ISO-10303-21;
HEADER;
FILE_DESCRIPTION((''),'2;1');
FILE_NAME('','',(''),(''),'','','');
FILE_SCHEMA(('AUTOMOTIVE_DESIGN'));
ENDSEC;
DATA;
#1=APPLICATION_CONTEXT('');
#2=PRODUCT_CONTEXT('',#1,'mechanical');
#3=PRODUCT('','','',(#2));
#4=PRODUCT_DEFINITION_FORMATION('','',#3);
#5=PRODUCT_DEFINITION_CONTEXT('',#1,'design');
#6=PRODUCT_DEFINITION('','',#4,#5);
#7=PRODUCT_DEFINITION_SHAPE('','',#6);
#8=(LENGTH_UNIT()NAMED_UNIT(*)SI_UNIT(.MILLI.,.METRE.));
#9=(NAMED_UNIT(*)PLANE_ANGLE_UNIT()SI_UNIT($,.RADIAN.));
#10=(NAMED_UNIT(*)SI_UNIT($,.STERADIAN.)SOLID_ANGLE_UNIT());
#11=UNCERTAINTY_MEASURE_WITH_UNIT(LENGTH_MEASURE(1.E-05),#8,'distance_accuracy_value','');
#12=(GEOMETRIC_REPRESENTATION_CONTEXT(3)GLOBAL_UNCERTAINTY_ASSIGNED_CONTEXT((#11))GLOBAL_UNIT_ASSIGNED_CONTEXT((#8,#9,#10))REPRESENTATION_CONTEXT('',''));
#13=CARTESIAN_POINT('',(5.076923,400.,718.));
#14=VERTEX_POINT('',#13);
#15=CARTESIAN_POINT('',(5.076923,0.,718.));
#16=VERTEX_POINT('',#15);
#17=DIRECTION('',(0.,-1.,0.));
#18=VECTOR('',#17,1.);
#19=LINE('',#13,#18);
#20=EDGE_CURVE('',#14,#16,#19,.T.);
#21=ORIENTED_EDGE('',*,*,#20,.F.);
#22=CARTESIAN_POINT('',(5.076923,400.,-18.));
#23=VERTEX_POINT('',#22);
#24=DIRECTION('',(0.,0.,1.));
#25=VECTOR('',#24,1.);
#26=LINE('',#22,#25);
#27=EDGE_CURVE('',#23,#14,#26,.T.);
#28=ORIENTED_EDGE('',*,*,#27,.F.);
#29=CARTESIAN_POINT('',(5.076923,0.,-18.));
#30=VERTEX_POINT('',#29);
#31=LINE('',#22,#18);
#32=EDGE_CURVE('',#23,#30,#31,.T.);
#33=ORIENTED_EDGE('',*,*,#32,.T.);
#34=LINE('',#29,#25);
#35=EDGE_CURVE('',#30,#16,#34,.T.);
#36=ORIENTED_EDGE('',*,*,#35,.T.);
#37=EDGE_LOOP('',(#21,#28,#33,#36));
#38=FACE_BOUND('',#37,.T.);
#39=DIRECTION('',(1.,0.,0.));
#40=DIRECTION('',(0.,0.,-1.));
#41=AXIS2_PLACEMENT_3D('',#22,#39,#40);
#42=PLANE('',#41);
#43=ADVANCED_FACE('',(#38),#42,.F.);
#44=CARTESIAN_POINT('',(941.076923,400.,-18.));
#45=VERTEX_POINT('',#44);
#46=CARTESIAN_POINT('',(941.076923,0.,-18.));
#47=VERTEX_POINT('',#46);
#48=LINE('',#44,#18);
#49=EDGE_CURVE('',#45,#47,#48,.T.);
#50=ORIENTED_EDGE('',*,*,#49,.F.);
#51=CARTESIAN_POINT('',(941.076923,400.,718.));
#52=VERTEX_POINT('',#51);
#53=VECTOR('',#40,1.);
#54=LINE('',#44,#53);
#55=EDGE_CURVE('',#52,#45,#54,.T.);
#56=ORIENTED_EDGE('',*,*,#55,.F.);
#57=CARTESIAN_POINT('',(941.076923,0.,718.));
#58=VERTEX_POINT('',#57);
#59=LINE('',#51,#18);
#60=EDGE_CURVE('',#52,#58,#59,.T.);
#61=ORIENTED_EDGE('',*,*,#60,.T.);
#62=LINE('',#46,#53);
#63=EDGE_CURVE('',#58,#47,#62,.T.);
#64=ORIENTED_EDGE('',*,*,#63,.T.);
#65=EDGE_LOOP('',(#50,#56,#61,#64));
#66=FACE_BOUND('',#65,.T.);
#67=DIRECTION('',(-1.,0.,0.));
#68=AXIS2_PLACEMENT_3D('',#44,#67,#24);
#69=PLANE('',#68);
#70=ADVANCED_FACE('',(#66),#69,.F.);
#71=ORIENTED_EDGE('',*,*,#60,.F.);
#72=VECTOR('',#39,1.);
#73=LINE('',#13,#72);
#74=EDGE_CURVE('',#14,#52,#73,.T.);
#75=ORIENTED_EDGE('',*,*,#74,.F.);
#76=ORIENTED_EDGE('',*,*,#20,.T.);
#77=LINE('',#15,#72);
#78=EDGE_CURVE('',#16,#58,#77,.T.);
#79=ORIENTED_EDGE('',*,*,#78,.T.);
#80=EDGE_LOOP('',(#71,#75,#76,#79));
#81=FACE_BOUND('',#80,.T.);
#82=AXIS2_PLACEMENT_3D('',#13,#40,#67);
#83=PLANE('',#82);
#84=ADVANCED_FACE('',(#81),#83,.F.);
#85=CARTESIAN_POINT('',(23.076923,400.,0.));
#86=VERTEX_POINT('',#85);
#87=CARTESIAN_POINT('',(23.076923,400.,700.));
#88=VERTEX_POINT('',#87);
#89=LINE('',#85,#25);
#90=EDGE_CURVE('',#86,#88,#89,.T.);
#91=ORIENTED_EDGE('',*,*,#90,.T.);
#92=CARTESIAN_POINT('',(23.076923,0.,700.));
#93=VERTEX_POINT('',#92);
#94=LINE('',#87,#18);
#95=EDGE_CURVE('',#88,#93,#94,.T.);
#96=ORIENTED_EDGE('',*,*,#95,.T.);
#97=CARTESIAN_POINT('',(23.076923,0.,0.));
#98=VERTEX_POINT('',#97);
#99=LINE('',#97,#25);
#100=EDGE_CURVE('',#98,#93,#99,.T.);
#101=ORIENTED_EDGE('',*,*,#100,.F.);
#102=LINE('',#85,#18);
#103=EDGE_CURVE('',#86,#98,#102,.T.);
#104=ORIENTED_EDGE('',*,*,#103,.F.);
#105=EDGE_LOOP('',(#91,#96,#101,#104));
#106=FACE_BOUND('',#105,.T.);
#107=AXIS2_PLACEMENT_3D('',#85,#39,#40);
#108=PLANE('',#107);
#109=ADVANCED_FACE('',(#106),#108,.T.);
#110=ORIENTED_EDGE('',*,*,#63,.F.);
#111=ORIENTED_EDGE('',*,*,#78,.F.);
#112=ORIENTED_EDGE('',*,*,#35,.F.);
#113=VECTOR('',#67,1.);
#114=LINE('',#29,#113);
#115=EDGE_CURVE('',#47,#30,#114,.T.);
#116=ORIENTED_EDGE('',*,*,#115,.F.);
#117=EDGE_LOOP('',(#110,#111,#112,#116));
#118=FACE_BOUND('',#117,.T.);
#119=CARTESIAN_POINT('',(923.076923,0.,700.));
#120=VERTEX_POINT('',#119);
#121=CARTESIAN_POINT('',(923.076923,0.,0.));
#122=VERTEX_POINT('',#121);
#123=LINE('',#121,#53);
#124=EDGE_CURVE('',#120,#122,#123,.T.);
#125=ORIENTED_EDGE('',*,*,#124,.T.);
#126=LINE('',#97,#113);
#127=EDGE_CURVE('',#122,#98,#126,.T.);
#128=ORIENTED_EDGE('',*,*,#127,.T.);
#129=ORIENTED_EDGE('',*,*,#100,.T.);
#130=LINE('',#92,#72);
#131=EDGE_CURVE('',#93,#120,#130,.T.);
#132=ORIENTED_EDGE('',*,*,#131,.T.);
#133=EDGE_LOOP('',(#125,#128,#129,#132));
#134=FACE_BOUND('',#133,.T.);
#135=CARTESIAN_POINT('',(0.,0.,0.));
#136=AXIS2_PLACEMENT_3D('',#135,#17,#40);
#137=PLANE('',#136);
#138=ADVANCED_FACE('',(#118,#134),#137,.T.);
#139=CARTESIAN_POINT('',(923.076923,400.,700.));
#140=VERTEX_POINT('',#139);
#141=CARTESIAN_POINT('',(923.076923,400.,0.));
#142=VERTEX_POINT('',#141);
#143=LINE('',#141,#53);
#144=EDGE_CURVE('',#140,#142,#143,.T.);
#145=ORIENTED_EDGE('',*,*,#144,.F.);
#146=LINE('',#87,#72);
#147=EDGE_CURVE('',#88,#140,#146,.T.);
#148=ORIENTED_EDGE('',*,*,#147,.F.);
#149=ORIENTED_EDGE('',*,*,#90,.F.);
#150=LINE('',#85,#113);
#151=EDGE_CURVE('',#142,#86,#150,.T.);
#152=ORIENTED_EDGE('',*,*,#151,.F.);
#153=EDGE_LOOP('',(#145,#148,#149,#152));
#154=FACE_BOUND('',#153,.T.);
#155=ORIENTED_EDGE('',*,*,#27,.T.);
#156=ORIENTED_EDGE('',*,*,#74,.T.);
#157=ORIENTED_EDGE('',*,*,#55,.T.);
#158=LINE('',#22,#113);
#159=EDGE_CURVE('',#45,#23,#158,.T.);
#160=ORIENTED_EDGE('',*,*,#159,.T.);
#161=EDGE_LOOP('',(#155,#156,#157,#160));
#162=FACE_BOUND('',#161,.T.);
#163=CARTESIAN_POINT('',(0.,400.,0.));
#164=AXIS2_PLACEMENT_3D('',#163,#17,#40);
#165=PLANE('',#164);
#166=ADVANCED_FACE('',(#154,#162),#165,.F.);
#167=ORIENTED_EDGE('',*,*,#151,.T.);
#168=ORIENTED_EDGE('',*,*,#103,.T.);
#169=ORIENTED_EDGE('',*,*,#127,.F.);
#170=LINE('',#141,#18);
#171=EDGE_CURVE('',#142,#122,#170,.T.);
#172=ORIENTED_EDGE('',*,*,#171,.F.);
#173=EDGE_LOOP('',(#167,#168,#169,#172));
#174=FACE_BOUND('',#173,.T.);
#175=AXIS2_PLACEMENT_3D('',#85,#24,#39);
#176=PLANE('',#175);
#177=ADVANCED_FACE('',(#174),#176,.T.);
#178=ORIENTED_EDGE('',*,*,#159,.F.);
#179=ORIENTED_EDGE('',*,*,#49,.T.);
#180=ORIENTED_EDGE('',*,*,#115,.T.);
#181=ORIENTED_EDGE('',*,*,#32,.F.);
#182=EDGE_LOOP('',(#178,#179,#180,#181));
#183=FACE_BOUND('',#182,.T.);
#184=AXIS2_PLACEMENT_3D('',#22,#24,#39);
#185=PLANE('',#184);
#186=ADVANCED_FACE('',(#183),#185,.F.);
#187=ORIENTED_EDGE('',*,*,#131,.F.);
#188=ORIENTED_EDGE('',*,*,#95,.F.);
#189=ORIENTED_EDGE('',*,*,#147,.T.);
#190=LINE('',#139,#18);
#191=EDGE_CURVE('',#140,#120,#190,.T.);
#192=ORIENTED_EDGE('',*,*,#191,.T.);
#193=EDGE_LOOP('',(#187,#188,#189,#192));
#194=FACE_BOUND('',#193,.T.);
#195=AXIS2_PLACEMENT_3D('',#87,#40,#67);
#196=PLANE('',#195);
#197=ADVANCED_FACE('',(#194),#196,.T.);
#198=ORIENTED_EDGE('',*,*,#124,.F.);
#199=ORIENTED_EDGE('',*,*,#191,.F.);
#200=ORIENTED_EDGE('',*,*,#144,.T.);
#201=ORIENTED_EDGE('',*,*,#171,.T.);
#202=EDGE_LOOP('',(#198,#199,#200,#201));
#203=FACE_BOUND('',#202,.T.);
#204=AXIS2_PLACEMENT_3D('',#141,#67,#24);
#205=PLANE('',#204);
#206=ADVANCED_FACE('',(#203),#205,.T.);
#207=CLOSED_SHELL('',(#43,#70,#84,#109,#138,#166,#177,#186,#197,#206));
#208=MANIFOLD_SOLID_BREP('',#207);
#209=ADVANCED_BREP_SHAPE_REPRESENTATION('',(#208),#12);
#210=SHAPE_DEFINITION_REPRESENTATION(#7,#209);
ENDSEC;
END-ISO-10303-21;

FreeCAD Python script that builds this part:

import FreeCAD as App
import Part
import Sketcher
from FreeCAD import Vector
Q = App.Units.Quantity


def add_polygon(sketch, points):
    """Adds a closed chain of lines whose ends are joined by coincident constraints."""
    first, n = sketch.GeometryCount, len(points)
    for a, b in zip(points, points[1:] + points[:1]):
        sketch.addGeometry(Part.LineSegment(App.Vector(*a, 0), App.Vector(*b, 0)), False)
    for i in range(n):
        sketch.addConstraint(Sketcher.Constraint("Coincident", first + i, 2, first + (i + 1) % n, 1))

doc = App.newDocument("Part")
params = doc.addObject("Spreadsheet::Sheet", "Params")
for row, (alias, value) in enumerate([
    ("sketch1_width", "936 mm"),
    ("sketch1_width2", "900 mm"),
    ("sketch1_height", "736 mm"),
    ("sketch1_height2", "700 mm"),
    ("pad1_length", "400 mm"),
], start=1):
    params.set(f"A{row}", alias)
    params.set(f"B{row}", "=" + value)
    params.setAlias(f"B{row}", alias)

body = doc.addObject("PartDesign::Body", "Body")

sketch1 = body.newObject("Sketcher::SketchObject", "Sketch")
sketch1.AttachmentSupport = (doc.getObject("XZ_Plane"), [""])
sketch1.MapMode = "FlatFace"
add_polygon(sketch1, [(5.076923, -18), (5.076923, 718), (941.076923, 718), (941.076923, -18)])
add_polygon(sketch1, [(923.076923, 700), (23.076923, 700), (23.076923, 0), (923.076923, 0)])
sketch1.addConstraint(Sketcher.Constraint("Vertical", 0))
sketch1.addConstraint(Sketcher.Constraint("Horizontal", 1))
sketch1.addConstraint(Sketcher.Constraint("Vertical", 2))
sketch1.addConstraint(Sketcher.Constraint("Horizontal", 3))
sketch1.addConstraint(Sketcher.Constraint("Horizontal", 4))
sketch1.addConstraint(Sketcher.Constraint("Vertical", 5))
sketch1.addConstraint(Sketcher.Constraint("Horizontal", 6))
sketch1.addConstraint(Sketcher.Constraint("Vertical", 7))
sketch1.addConstraint(Sketcher.Constraint("PointOnObject", 5, 2, -1))
sketch1.addConstraint(Sketcher.Constraint("DistanceX", 1, 1, 1, 2, Q("936 mm")))
sketch1.addConstraint(Sketcher.Constraint("DistanceX", 4, 2, 4, 1, Q("900 mm")))
sketch1.addConstraint(Sketcher.Constraint("DistanceY", 0, 1, 0, 2, Q("736 mm")))
sketch1.addConstraint(Sketcher.Constraint("DistanceY", 5, 2, 5, 1, Q("700 mm")))
sketch1.addConstraint(Sketcher.Constraint("DistanceY", -1, 1, 0, 2, Q("718 mm")))
sketch1.addConstraint(Sketcher.Constraint("DistanceX", 0, 2, 4, 2, Q("18 mm")))
sketch1.addConstraint(Sketcher.Constraint("DistanceX", -1, 1, 0, 2, Q("5.076923 mm")))
sketch1.setExpression("Constraints[17]", "Params.sketch1_width")
sketch1.setExpression("Constraints[18]", "Params.sketch1_width2")
sketch1.setExpression("Constraints[19]", "Params.sketch1_height")
sketch1.setExpression("Constraints[20]", "Params.sketch1_height2")
pad1 = body.newObject("PartDesign::Pad", "Pad")
pad1.Profile = sketch1
pad1.setExpression("Length", "Params.pad1_length")
pad1.Reversed = True

doc.recompute()
